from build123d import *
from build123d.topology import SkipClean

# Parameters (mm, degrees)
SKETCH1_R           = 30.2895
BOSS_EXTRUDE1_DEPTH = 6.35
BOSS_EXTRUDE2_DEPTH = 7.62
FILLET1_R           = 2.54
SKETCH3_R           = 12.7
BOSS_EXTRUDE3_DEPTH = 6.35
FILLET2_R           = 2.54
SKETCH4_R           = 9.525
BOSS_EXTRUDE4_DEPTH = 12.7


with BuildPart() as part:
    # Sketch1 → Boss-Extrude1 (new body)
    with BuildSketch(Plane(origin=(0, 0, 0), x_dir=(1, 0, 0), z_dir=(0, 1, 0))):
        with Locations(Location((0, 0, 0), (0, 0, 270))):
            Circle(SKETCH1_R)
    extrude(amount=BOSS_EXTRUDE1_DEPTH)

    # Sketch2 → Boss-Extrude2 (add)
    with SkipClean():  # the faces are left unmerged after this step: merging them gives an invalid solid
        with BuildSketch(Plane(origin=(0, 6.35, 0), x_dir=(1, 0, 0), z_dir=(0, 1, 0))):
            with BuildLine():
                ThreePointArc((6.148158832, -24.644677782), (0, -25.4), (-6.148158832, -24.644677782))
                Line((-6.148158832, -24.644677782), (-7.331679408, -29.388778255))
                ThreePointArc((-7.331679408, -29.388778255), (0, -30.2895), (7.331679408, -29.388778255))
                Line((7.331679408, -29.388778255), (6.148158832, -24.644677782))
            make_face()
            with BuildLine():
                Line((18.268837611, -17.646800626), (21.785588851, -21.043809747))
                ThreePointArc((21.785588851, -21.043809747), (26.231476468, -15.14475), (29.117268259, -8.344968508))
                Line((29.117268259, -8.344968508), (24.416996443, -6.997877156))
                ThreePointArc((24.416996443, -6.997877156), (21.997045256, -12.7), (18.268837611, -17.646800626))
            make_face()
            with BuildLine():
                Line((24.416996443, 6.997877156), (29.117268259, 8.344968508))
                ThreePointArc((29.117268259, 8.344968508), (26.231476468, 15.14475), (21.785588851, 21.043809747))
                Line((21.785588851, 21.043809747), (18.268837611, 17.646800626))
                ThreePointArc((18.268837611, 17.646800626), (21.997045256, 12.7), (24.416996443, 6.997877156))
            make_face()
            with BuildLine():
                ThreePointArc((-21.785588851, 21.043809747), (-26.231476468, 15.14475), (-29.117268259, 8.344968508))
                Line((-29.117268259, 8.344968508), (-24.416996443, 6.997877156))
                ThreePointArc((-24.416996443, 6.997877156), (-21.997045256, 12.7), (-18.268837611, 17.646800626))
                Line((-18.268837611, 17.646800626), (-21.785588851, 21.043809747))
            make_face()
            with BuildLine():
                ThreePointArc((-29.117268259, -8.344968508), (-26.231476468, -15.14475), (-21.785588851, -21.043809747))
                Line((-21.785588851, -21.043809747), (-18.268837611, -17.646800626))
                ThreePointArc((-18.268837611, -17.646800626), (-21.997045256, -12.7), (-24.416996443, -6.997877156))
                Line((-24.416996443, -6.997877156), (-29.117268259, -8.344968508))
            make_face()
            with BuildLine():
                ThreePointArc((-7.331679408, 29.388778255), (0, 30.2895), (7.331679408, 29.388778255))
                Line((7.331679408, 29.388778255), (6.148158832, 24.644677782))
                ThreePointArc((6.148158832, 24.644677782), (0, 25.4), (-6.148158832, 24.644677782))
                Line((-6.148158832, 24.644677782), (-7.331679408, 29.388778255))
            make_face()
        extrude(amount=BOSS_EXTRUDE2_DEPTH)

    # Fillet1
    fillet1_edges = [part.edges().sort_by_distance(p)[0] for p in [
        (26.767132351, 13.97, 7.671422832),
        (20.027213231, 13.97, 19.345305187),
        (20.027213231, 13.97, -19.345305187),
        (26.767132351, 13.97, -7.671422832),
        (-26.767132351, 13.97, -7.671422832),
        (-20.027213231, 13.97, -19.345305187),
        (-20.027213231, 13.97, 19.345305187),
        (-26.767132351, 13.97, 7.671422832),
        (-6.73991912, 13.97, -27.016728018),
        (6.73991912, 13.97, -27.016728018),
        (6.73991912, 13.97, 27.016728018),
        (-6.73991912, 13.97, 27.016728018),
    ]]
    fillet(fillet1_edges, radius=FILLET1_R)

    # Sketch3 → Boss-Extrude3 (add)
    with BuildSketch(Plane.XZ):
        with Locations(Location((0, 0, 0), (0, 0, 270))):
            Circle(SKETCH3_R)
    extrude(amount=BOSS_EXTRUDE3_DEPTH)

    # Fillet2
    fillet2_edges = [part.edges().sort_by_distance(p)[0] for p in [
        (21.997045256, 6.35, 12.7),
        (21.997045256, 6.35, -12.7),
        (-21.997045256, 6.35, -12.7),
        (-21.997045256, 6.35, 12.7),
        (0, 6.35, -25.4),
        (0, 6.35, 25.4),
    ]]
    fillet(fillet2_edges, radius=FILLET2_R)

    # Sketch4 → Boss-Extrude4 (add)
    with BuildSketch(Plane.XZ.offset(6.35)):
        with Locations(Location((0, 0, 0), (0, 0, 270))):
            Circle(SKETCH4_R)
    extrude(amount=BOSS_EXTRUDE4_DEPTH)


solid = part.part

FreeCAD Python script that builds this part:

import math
import FreeCAD as App
import Part
import Sketcher
from FreeCAD import Vector
Q = App.Units.Quantity


def edges_at(feature, points):
    """Names of the edges that pass closest to the given points."""
    edges = feature.Shape.Edges
    near = lambda p: min(range(len(edges)), key=lambda i: edges[i].distToShape(Part.Vertex(*p))[0])
    return sorted({f"Edge{near(p) + 1}" for p in points})

doc = App.newDocument("Part")
body = doc.addObject("PartDesign::Body", "Body")

# Sketch on XZ plane
sketch1 = body.newObject("Sketcher::SketchObject", "Sketch")
sketch1.AttachmentSupport = (doc.getObject("XZ_Plane"), [""])
sketch1.MapMode = "FlatFace"
sketch1.addGeometry(Part.Circle(Vector(0, 0, 0), Vector(0, 0, 1), 30), False)
sketch1.addConstraint(Sketcher.Constraint("Coincident", 0, 3, -1, 1))
sketch1.addConstraint(Sketcher.Constraint("Diameter", 0, Q("2.385 in")))
pad1 = body.newObject("PartDesign::Pad", "Pad")
pad1.Profile = sketch1
pad1.Length = Q("0.25 in")
pad1.Reversed = True

# Sketch on XZ plane
sketch2 = body.newObject("Sketcher::SketchObject", "Sketch001")
sketch2.AttachmentSupport = (doc.getObject("XZ_Plane"), [""])
sketch2.MapMode = "FlatFace"
sketch2.AttachmentOffset = App.Placement(Vector(0, 0, -0.25 * 25.4), App.Rotation())
sketch2.addGeometry(Part.ArcOfCircle(Part.Circle(Vector(0, 0, 0), Vector(0, 0, 1), 25.4), math.radians(76), math.radians(104)), False)
sketch2.addGeometry(Part.LineSegment(Vector(-6.1, 24.6, 0), Vector(-7.3, 29.4, 0)), False)
sketch2.addGeometry(Part.ArcOfCircle(Part.Circle(Vector(0, 0, 0), Vector(0, 0, 1), 30.3), math.radians(76), math.radians(104)), False)
sketch2.addGeometry(Part.LineSegment(Vector(7.3, 29.4, 0), Vector(6.1, 24.6, 0)), False)
sketch2.addGeometry(Part.LineSegment(Vector(18.3, 17.6, 0), Vector(21.8, 21, 0)), False)
sketch2.addGeometry(Part.ArcOfCircle(Part.Circle(Vector(0, 0, 0), Vector(0, 0, 1), 30.3), math.radians(16), math.radians(44)), False)
sketch2.addGeometry(Part.LineSegment(Vector(29.1, 8.3, 0), Vector(24.4, 7, 0)), False)
sketch2.addGeometry(Part.ArcOfCircle(Part.Circle(Vector(0, 0, 0), Vector(0, 0, 1), 25.4), math.radians(16), math.radians(44)), False)
sketch2.addGeometry(Part.LineSegment(Vector(24.4, -7, 0), Vector(29.1, -8.3, 0)), False)
sketch2.addGeometry(Part.ArcOfCircle(Part.Circle(Vector(0, 0, 0), Vector(0, 0, 1), 30.3), math.radians(-44), math.radians(-16)), False)
sketch2.addGeometry(Part.LineSegment(Vector(21.8, -21, 0), Vector(18.3, -17.6, 0)), False)
sketch2.addGeometry(Part.ArcOfCircle(Part.Circle(Vector(0, 0, 0), Vector(0, 0, 1), 25.4), math.radians(-44), math.radians(-16)), False)
sketch2.addGeometry(Part.ArcOfCircle(Part.Circle(Vector(0, 0, 0), Vector(0, 0, 1), 30.3), math.radians(-164), math.radians(-136)), False)
sketch2.addGeometry(Part.LineSegment(Vector(-29.1, -8.3, 0), Vector(-24.4, -7, 0)), False)
sketch2.addGeometry(Part.ArcOfCircle(Part.Circle(Vector(0, 0, 0), Vector(0, 0, 1), 25.4), math.radians(-164), math.radians(-136)), False)
sketch2.addGeometry(Part.LineSegment(Vector(-18.3, -17.6, 0), Vector(-21.8, -21, 0)), False)
sketch2.addGeometry(Part.ArcOfCircle(Part.Circle(Vector(0, 0, 0), Vector(0, 0, 1), 30.3), math.radians(136), math.radians(164)), False)
sketch2.addGeometry(Part.LineSegment(Vector(-21.8, 21, 0), Vector(-18.3, 17.6, 0)), False)
sketch2.addGeometry(Part.ArcOfCircle(Part.Circle(Vector(0, 0, 0), Vector(0, 0, 1), 25.4), math.radians(136), math.radians(164)), False)
sketch2.addGeometry(Part.LineSegment(Vector(-24.4, 7, 0), Vector(-29.1, 8.3, 0)), False)
sketch2.addGeometry(Part.ArcOfCircle(Part.Circle(Vector(0, 0, 0), Vector(0, 0, 1), 30.3), math.radians(-104), math.radians(-76)), False)
sketch2.addGeometry(Part.LineSegment(Vector(-7.3, -29.4, 0), Vector(-6.1, -24.6, 0)), False)
sketch2.addGeometry(Part.ArcOfCircle(Part.Circle(Vector(0, 0, 0), Vector(0, 0, 1), 25.4), math.radians(-104), math.radians(-76)), False)
sketch2.addGeometry(Part.LineSegment(Vector(6.1, -24.6, 0), Vector(7.3, -29.4, 0)), False)
sketch2.addConstraint(Sketcher.Constraint("Coincident", 0, 2, 1, 1))
sketch2.addConstraint(Sketcher.Constraint("Coincident", 1, 2, 2, 2))
sketch2.addConstraint(Sketcher.Constraint("Coincident", 2, 1, 3, 1))
sketch2.addConstraint(Sketcher.Constraint("Coincident", 3, 2, 0, 1))
sketch2.addConstraint(Sketcher.Constraint("Coincident", 4, 2, 5, 2))
sketch2.addConstraint(Sketcher.Constraint("Coincident", 5, 1, 6, 1))
sketch2.addConstraint(Sketcher.Constraint("Coincident", 6, 2, 7, 1))
sketch2.addConstraint(Sketcher.Constraint("Coincident", 7, 2, 4, 1))
sketch2.addConstraint(Sketcher.Constraint("Coincident", 8, 2, 9, 2))
sketch2.addConstraint(Sketcher.Constraint("Coincident", 9, 1, 10, 1))
sketch2.addConstraint(Sketcher.Constraint("Coincident", 10, 2, 11, 1))
sketch2.addConstraint(Sketcher.Constraint("Coincident", 11, 2, 8, 1))
sketch2.addConstraint(Sketcher.Constraint("Coincident", 12, 1, 13, 1))
sketch2.addConstraint(Sketcher.Constraint("Coincident", 13, 2, 14, 1))
sketch2.addConstraint(Sketcher.Constraint("Coincident", 14, 2, 15, 1))
sketch2.addConstraint(Sketcher.Constraint("Coincident", 15, 2, 12, 2))
sketch2.addConstraint(Sketcher.Constraint("Coincident", 16, 1, 17, 1))
sketch2.addConstraint(Sketcher.Constraint("Coincident", 17, 2, 18, 1))
sketch2.addConstraint(Sketcher.Constraint("Coincident", 18, 2, 19, 1))
sketch2.addConstraint(Sketcher.Constraint("Coincident", 19, 2, 16, 2))
sketch2.addConstraint(Sketcher.Constraint("Coincident", 20, 1, 21, 1))
sketch2.addConstraint(Sketcher.Constraint("Coincident", 21, 2, 22, 1))
sketch2.addConstraint(Sketcher.Constraint("Coincident", 22, 2, 23, 1))
sketch2.addConstraint(Sketcher.Constraint("Coincident", 23, 2, 20, 2))
sketch2.addConstraint(Sketcher.Constraint("Coincident", 0, 3, -1, 1))
sketch2.addConstraint(Sketcher.Constraint("Coincident", 2, 3, -1, 1))
sketch2.addConstraint(Sketcher.Constraint("Coincident", 5, 3, -1, 1))
sketch2.addConstraint(Sketcher.Constraint("Coincident", 7, 3, -1, 1))
sketch2.addConstraint(Sketcher.Constraint("Coincident", 9, 3, -1, 1))
sketch2.addConstraint(Sketcher.Constraint("Coincident", 11, 3, -1, 1))
sketch2.addConstraint(Sketcher.Constraint("Coincident", 12, 3, -1, 1))
sketch2.addConstraint(Sketcher.Constraint("Coincident", 14, 3, -1, 1))
sketch2.addConstraint(Sketcher.Constraint("Coincident", 16, 3, -1, 1))
sketch2.addConstraint(Sketcher.Constraint("Coincident", 18, 3, -1, 1))
sketch2.addConstraint(Sketcher.Constraint("Coincident", 20, 3, -1, 1))
sketch2.addConstraint(Sketcher.Constraint("Coincident", 22, 3, -1, 1))
sketch2.addConstraint(Sketcher.Constraint("Equal", 2, 5))
sketch2.addConstraint(Sketcher.Constraint("Equal", 0, 7))
sketch2.addConstraint(Sketcher.Constraint("Equal", 5, 9))
sketch2.addConstraint(Sketcher.Constraint("Equal", 7, 11))
sketch2.addConstraint(Sketcher.Constraint("Equal", 9, 12))
sketch2.addConstraint(Sketcher.Constraint("Equal", 11, 14))
sketch2.addConstraint(Sketcher.Constraint("Equal", 12, 16))
sketch2.addConstraint(Sketcher.Constraint("Equal", 14, 18))
sketch2.addConstraint(Sketcher.Constraint("Equal", 16, 20))
sketch2.addConstraint(Sketcher.Constraint("Equal", 18, 22))
sketch2.addConstraint(Sketcher.Constraint("Parallel", 6, 13))
sketch2.addConstraint(Sketcher.Constraint("Parallel", 4, 15))
sketch2.addConstraint(Sketcher.Constraint("Parallel", 10, 17))
sketch2.addConstraint(Sketcher.Constraint("Parallel", 8, 19))
sketch2.addConstraint(Sketcher.Constraint("Parallel", 3, 21))
sketch2.addConstraint(Sketcher.Constraint("Parallel", 1, 23))
sketch2.addConstraint(Sketcher.Constraint("Horizontal", 1, 2, 2, 1))
sketch2.addConstraint(Sketcher.Constraint("Horizontal", 0, 2, 3, 2))
sketch2.addConstraint(Sketcher.Constraint("Horizontal", 8, 2, 12, 1))
sketch2.addConstraint(Sketcher.Constraint("Horizontal", 11, 2, 13, 2))
sketch2.addConstraint(Sketcher.Constraint("Horizontal", 10, 2, 14, 2))
sketch2.addConstraint(Sketcher.Constraint("Horizontal", 9, 1, 15, 2))
sketch2.addConstraint(Sketcher.Constraint("Horizontal", 4, 2, 16, 1))
sketch2.addConstraint(Sketcher.Constraint("Horizontal", 6, 2, 18, 2))
sketch2.addConstraint(Sketcher.Constraint("Horizontal", 21, 2, 22, 2))
sketch2.addConstraint(Sketcher.Constraint("Vertical", 5, 1, 8, 2))
sketch2.addConstraint(Sketcher.Constraint("Vertical", 4, 2, 9, 1))
sketch2.addConstraint(Sketcher.Constraint("Vertical", 1, 2, 20, 1))
sketch2.addConstraint(Sketcher.Constraint("Radius", 0, Q("1 in")))
sketch2.addConstraint(Sketcher.Constraint("Radius", 2, Q("1.1925 in")))
sketch2.addConstraint(Sketcher.Constraint("DistanceY", -1, 1, 7, 2, Q("17.646801 mm")))
sketch2.addConstraint(Sketcher.Constraint("DistanceY", 0, 2, 1, 2, Q("4.7441 mm")))
sketch2.addConstraint(Sketcher.Constraint("DistanceY", 20, 1, 13, 2, Q("22.390901 mm")))
sketch2.addConstraint(Sketcher.Constraint("DistanceX", 0, 2, -1, 1, Q("6.148159 mm")))
sketch2.addConstraint(Sketcher.Constraint("DistanceX", -1, 1, 4, 2, Q("21.785589 mm")))
sketch2.addConstraint(Sketcher.Constraint("DistanceX", -1, 1, 5, 1, Q("29.117268 mm")))
pad2 = body.newObject("PartDesign::Pad", "Pad001")
pad2.Profile = sketch2
pad2.Length = Q("0.3 in")
pad2.Reversed = True
doc.recompute()

fillet = body.newObject("PartDesign::Fillet", "Fillet")
fillet.Base = (pad2, edges_at(pad2, [
    (26.767, 13.97, 7.671),
    (20.027, 13.97, 19.345),
    (20.027, 13.97, -19.345),
    (26.767, 13.97, -7.671),
    (-26.767, 13.97, -7.671),
    (-20.027, 13.97, -19.345),
    (-20.027, 13.97, 19.345),
    (-26.767, 13.97, 7.671),
    (-6.74, 13.97, -27.017),
    (6.74, 13.97, -27.017),
    (6.74, 13.97, 27.017),
    (-6.74, 13.97, 27.017),
]))
fillet.Radius = Q("0.1 in")

# Sketch on XZ plane
sketch3 = body.newObject("Sketcher::SketchObject", "Sketch002")
sketch3.AttachmentSupport = (doc.getObject("XZ_Plane"), [""])
sketch3.MapMode = "FlatFace"
sketch3.addGeometry(Part.Circle(Vector(0, 0, 0), Vector(0, 0, 1), 13), False)
sketch3.addConstraint(Sketcher.Constraint("Coincident", 0, 3, -1, 1))
sketch3.addConstraint(Sketcher.Constraint("Diameter", 0, Q("1 in")))
pad3 = body.newObject("PartDesign::Pad", "Pad002")
pad3.Profile = sketch3
pad3.Length = Q("0.25 in")
doc.recompute()

fillet2 = body.newObject("PartDesign::Fillet", "Fillet001")
fillet2.Base = (pad3, edges_at(pad3, [
    (21.997, 6.35, 12.7),
    (21.997, 6.35, -12.7),
    (-21.997, 6.35, -12.7),
    (-21.997, 6.35, 12.7),
    (0, 6.35, -25.4),
    (0, 6.35, 25.4),
]))
fillet2.Radius = Q("0.1 in")

# Sketch on XZ plane
sketch4 = body.newObject("Sketcher::SketchObject", "Sketch003")
sketch4.AttachmentSupport = (doc.getObject("XZ_Plane"), [""])
sketch4.MapMode = "FlatFace"
sketch4.AttachmentOffset = App.Placement(Vector(0, 0, 0.25 * 25.4), App.Rotation())
sketch4.addGeometry(Part.Circle(Vector(0, 0, 0), Vector(0, 0, 1), 10), False)
sketch4.addConstraint(Sketcher.Constraint("Coincident", 0, 3, -1, 1))
sketch4.addConstraint(Sketcher.Constraint("Diameter", 0, Q("0.75 in")))
pad4 = body.newObject("PartDesign::Pad", "Pad003")
pad4.Profile = sketch4
pad4.Length = Q("0.5 in")

doc.recompute()
